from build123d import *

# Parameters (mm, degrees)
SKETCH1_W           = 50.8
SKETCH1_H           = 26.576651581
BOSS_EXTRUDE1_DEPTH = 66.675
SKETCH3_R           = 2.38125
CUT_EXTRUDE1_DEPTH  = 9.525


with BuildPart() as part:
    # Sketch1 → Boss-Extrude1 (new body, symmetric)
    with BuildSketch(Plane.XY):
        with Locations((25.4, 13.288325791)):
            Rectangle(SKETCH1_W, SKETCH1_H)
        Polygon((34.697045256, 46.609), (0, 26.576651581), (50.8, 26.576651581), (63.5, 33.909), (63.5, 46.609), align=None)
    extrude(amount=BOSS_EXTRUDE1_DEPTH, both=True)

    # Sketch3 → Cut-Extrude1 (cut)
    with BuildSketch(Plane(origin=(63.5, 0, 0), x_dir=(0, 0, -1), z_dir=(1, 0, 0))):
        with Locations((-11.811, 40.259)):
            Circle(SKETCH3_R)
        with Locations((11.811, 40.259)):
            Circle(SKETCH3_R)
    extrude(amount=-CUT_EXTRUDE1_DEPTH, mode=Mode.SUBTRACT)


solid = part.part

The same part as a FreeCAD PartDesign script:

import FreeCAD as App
import Part
import Sketcher
from FreeCAD import Vector
Q = App.Units.Quantity


def add_polygon(sketch, points):
    """Adds a closed chain of lines whose ends are joined by coincident constraints."""
    first, n = sketch.GeometryCount, len(points)
    for a, b in zip(points, points[1:] + points[:1]):
        sketch.addGeometry(Part.LineSegment(App.Vector(*a, 0), App.Vector(*b, 0)), False)
    for i in range(n):
        sketch.addConstraint(Sketcher.Constraint("Coincident", first + i, 2, first + (i + 1) % n, 1))

doc = App.newDocument("Part")
body = doc.addObject("PartDesign::Body", "Body")

sketch1 = doc.addObject("Sketcher::SketchObject", "Sketch")
body.addObject(sketch1)
sketch1.AttachmentSupport = (doc.XY_Plane, [""])
sketch1.MapMode = "FlatFace"
add_polygon(sketch1, [(0, 27), (0, 0), (51, 0), (51, 27), (64, 34), (64, 47), (35, 47)])
sketch1.addConstraint([
    Sketcher.Constraint("Vertical", 0),
    Sketcher.Constraint("Horizontal", 1),
    Sketcher.Constraint("Vertical", 2),
    Sketcher.Constraint("Vertical", 4),
    Sketcher.Constraint("Horizontal", 5),
    Sketcher.Constraint("Coincident", 0, 2, -1, 1),
    Sketcher.Constraint("Parallel", 3, 6),
    Sketcher.Constraint("Horizontal", 2, 2, 6, 2),
    Sketcher.Constraint("DistanceX", 1, 1, 1, 2, Q("2 in")),
    Sketcher.Constraint("DistanceY", 4, 1, 4, 2, Q("0.5 in")),
    Sketcher.Constraint("Angle", 3, Q("30 deg")),
    Sketcher.Constraint("DistanceX", -1, 1, 3, 2, Q("2.5 in")),
    Sketcher.Constraint("DistanceY", -1, 1, 3, 2, Q("1.335 in")),
])
pad1 = doc.addObject("PartDesign::Pad", "Pad")
body.addObject(pad1)
pad1.Profile = sketch1
pad1.Length = Q("5.25 in")
pad1.Midplane = True

sketch2 = doc.addObject("Sketcher::SketchObject", "Sketch001")
body.addObject(sketch2)
sketch2.AttachmentSupport = (doc.YZ_Plane, [""])
sketch2.MapMode = "FlatFace"
sketch2.AttachmentOffset = App.Placement(Vector(0, 0, 2.5 * 25.4), App.Rotation())
sketch2.addGeometry([
    Part.Circle(Vector(40.3, 11.8, 0), Vector(0, 0, 1), 2.4),
    Part.Circle(Vector(40.3, -11.8, 0), Vector(0, 0, 1), 2.4),
], False)
sketch2.addConstraint([
    Sketcher.Constraint("Equal", 0, 1),
    Sketcher.Constraint("Symmetric", 0, 3, 1, 3, -1),
    Sketcher.Constraint("Diameter", 0, Q("0.1875 in")),
    Sketcher.Constraint("DistanceY", 1, 3, 0, 3, Q("0.93 in")),
    Sketcher.Constraint("DistanceX", -1, 1, 0, 3, Q("1.585 in")),
])
pocket1 = doc.addObject("PartDesign::Pocket", "Pocket")
body.addObject(pocket1)
pocket1.Profile = sketch2
pocket1.Length = Q("0.375 in")

doc.recompute()
